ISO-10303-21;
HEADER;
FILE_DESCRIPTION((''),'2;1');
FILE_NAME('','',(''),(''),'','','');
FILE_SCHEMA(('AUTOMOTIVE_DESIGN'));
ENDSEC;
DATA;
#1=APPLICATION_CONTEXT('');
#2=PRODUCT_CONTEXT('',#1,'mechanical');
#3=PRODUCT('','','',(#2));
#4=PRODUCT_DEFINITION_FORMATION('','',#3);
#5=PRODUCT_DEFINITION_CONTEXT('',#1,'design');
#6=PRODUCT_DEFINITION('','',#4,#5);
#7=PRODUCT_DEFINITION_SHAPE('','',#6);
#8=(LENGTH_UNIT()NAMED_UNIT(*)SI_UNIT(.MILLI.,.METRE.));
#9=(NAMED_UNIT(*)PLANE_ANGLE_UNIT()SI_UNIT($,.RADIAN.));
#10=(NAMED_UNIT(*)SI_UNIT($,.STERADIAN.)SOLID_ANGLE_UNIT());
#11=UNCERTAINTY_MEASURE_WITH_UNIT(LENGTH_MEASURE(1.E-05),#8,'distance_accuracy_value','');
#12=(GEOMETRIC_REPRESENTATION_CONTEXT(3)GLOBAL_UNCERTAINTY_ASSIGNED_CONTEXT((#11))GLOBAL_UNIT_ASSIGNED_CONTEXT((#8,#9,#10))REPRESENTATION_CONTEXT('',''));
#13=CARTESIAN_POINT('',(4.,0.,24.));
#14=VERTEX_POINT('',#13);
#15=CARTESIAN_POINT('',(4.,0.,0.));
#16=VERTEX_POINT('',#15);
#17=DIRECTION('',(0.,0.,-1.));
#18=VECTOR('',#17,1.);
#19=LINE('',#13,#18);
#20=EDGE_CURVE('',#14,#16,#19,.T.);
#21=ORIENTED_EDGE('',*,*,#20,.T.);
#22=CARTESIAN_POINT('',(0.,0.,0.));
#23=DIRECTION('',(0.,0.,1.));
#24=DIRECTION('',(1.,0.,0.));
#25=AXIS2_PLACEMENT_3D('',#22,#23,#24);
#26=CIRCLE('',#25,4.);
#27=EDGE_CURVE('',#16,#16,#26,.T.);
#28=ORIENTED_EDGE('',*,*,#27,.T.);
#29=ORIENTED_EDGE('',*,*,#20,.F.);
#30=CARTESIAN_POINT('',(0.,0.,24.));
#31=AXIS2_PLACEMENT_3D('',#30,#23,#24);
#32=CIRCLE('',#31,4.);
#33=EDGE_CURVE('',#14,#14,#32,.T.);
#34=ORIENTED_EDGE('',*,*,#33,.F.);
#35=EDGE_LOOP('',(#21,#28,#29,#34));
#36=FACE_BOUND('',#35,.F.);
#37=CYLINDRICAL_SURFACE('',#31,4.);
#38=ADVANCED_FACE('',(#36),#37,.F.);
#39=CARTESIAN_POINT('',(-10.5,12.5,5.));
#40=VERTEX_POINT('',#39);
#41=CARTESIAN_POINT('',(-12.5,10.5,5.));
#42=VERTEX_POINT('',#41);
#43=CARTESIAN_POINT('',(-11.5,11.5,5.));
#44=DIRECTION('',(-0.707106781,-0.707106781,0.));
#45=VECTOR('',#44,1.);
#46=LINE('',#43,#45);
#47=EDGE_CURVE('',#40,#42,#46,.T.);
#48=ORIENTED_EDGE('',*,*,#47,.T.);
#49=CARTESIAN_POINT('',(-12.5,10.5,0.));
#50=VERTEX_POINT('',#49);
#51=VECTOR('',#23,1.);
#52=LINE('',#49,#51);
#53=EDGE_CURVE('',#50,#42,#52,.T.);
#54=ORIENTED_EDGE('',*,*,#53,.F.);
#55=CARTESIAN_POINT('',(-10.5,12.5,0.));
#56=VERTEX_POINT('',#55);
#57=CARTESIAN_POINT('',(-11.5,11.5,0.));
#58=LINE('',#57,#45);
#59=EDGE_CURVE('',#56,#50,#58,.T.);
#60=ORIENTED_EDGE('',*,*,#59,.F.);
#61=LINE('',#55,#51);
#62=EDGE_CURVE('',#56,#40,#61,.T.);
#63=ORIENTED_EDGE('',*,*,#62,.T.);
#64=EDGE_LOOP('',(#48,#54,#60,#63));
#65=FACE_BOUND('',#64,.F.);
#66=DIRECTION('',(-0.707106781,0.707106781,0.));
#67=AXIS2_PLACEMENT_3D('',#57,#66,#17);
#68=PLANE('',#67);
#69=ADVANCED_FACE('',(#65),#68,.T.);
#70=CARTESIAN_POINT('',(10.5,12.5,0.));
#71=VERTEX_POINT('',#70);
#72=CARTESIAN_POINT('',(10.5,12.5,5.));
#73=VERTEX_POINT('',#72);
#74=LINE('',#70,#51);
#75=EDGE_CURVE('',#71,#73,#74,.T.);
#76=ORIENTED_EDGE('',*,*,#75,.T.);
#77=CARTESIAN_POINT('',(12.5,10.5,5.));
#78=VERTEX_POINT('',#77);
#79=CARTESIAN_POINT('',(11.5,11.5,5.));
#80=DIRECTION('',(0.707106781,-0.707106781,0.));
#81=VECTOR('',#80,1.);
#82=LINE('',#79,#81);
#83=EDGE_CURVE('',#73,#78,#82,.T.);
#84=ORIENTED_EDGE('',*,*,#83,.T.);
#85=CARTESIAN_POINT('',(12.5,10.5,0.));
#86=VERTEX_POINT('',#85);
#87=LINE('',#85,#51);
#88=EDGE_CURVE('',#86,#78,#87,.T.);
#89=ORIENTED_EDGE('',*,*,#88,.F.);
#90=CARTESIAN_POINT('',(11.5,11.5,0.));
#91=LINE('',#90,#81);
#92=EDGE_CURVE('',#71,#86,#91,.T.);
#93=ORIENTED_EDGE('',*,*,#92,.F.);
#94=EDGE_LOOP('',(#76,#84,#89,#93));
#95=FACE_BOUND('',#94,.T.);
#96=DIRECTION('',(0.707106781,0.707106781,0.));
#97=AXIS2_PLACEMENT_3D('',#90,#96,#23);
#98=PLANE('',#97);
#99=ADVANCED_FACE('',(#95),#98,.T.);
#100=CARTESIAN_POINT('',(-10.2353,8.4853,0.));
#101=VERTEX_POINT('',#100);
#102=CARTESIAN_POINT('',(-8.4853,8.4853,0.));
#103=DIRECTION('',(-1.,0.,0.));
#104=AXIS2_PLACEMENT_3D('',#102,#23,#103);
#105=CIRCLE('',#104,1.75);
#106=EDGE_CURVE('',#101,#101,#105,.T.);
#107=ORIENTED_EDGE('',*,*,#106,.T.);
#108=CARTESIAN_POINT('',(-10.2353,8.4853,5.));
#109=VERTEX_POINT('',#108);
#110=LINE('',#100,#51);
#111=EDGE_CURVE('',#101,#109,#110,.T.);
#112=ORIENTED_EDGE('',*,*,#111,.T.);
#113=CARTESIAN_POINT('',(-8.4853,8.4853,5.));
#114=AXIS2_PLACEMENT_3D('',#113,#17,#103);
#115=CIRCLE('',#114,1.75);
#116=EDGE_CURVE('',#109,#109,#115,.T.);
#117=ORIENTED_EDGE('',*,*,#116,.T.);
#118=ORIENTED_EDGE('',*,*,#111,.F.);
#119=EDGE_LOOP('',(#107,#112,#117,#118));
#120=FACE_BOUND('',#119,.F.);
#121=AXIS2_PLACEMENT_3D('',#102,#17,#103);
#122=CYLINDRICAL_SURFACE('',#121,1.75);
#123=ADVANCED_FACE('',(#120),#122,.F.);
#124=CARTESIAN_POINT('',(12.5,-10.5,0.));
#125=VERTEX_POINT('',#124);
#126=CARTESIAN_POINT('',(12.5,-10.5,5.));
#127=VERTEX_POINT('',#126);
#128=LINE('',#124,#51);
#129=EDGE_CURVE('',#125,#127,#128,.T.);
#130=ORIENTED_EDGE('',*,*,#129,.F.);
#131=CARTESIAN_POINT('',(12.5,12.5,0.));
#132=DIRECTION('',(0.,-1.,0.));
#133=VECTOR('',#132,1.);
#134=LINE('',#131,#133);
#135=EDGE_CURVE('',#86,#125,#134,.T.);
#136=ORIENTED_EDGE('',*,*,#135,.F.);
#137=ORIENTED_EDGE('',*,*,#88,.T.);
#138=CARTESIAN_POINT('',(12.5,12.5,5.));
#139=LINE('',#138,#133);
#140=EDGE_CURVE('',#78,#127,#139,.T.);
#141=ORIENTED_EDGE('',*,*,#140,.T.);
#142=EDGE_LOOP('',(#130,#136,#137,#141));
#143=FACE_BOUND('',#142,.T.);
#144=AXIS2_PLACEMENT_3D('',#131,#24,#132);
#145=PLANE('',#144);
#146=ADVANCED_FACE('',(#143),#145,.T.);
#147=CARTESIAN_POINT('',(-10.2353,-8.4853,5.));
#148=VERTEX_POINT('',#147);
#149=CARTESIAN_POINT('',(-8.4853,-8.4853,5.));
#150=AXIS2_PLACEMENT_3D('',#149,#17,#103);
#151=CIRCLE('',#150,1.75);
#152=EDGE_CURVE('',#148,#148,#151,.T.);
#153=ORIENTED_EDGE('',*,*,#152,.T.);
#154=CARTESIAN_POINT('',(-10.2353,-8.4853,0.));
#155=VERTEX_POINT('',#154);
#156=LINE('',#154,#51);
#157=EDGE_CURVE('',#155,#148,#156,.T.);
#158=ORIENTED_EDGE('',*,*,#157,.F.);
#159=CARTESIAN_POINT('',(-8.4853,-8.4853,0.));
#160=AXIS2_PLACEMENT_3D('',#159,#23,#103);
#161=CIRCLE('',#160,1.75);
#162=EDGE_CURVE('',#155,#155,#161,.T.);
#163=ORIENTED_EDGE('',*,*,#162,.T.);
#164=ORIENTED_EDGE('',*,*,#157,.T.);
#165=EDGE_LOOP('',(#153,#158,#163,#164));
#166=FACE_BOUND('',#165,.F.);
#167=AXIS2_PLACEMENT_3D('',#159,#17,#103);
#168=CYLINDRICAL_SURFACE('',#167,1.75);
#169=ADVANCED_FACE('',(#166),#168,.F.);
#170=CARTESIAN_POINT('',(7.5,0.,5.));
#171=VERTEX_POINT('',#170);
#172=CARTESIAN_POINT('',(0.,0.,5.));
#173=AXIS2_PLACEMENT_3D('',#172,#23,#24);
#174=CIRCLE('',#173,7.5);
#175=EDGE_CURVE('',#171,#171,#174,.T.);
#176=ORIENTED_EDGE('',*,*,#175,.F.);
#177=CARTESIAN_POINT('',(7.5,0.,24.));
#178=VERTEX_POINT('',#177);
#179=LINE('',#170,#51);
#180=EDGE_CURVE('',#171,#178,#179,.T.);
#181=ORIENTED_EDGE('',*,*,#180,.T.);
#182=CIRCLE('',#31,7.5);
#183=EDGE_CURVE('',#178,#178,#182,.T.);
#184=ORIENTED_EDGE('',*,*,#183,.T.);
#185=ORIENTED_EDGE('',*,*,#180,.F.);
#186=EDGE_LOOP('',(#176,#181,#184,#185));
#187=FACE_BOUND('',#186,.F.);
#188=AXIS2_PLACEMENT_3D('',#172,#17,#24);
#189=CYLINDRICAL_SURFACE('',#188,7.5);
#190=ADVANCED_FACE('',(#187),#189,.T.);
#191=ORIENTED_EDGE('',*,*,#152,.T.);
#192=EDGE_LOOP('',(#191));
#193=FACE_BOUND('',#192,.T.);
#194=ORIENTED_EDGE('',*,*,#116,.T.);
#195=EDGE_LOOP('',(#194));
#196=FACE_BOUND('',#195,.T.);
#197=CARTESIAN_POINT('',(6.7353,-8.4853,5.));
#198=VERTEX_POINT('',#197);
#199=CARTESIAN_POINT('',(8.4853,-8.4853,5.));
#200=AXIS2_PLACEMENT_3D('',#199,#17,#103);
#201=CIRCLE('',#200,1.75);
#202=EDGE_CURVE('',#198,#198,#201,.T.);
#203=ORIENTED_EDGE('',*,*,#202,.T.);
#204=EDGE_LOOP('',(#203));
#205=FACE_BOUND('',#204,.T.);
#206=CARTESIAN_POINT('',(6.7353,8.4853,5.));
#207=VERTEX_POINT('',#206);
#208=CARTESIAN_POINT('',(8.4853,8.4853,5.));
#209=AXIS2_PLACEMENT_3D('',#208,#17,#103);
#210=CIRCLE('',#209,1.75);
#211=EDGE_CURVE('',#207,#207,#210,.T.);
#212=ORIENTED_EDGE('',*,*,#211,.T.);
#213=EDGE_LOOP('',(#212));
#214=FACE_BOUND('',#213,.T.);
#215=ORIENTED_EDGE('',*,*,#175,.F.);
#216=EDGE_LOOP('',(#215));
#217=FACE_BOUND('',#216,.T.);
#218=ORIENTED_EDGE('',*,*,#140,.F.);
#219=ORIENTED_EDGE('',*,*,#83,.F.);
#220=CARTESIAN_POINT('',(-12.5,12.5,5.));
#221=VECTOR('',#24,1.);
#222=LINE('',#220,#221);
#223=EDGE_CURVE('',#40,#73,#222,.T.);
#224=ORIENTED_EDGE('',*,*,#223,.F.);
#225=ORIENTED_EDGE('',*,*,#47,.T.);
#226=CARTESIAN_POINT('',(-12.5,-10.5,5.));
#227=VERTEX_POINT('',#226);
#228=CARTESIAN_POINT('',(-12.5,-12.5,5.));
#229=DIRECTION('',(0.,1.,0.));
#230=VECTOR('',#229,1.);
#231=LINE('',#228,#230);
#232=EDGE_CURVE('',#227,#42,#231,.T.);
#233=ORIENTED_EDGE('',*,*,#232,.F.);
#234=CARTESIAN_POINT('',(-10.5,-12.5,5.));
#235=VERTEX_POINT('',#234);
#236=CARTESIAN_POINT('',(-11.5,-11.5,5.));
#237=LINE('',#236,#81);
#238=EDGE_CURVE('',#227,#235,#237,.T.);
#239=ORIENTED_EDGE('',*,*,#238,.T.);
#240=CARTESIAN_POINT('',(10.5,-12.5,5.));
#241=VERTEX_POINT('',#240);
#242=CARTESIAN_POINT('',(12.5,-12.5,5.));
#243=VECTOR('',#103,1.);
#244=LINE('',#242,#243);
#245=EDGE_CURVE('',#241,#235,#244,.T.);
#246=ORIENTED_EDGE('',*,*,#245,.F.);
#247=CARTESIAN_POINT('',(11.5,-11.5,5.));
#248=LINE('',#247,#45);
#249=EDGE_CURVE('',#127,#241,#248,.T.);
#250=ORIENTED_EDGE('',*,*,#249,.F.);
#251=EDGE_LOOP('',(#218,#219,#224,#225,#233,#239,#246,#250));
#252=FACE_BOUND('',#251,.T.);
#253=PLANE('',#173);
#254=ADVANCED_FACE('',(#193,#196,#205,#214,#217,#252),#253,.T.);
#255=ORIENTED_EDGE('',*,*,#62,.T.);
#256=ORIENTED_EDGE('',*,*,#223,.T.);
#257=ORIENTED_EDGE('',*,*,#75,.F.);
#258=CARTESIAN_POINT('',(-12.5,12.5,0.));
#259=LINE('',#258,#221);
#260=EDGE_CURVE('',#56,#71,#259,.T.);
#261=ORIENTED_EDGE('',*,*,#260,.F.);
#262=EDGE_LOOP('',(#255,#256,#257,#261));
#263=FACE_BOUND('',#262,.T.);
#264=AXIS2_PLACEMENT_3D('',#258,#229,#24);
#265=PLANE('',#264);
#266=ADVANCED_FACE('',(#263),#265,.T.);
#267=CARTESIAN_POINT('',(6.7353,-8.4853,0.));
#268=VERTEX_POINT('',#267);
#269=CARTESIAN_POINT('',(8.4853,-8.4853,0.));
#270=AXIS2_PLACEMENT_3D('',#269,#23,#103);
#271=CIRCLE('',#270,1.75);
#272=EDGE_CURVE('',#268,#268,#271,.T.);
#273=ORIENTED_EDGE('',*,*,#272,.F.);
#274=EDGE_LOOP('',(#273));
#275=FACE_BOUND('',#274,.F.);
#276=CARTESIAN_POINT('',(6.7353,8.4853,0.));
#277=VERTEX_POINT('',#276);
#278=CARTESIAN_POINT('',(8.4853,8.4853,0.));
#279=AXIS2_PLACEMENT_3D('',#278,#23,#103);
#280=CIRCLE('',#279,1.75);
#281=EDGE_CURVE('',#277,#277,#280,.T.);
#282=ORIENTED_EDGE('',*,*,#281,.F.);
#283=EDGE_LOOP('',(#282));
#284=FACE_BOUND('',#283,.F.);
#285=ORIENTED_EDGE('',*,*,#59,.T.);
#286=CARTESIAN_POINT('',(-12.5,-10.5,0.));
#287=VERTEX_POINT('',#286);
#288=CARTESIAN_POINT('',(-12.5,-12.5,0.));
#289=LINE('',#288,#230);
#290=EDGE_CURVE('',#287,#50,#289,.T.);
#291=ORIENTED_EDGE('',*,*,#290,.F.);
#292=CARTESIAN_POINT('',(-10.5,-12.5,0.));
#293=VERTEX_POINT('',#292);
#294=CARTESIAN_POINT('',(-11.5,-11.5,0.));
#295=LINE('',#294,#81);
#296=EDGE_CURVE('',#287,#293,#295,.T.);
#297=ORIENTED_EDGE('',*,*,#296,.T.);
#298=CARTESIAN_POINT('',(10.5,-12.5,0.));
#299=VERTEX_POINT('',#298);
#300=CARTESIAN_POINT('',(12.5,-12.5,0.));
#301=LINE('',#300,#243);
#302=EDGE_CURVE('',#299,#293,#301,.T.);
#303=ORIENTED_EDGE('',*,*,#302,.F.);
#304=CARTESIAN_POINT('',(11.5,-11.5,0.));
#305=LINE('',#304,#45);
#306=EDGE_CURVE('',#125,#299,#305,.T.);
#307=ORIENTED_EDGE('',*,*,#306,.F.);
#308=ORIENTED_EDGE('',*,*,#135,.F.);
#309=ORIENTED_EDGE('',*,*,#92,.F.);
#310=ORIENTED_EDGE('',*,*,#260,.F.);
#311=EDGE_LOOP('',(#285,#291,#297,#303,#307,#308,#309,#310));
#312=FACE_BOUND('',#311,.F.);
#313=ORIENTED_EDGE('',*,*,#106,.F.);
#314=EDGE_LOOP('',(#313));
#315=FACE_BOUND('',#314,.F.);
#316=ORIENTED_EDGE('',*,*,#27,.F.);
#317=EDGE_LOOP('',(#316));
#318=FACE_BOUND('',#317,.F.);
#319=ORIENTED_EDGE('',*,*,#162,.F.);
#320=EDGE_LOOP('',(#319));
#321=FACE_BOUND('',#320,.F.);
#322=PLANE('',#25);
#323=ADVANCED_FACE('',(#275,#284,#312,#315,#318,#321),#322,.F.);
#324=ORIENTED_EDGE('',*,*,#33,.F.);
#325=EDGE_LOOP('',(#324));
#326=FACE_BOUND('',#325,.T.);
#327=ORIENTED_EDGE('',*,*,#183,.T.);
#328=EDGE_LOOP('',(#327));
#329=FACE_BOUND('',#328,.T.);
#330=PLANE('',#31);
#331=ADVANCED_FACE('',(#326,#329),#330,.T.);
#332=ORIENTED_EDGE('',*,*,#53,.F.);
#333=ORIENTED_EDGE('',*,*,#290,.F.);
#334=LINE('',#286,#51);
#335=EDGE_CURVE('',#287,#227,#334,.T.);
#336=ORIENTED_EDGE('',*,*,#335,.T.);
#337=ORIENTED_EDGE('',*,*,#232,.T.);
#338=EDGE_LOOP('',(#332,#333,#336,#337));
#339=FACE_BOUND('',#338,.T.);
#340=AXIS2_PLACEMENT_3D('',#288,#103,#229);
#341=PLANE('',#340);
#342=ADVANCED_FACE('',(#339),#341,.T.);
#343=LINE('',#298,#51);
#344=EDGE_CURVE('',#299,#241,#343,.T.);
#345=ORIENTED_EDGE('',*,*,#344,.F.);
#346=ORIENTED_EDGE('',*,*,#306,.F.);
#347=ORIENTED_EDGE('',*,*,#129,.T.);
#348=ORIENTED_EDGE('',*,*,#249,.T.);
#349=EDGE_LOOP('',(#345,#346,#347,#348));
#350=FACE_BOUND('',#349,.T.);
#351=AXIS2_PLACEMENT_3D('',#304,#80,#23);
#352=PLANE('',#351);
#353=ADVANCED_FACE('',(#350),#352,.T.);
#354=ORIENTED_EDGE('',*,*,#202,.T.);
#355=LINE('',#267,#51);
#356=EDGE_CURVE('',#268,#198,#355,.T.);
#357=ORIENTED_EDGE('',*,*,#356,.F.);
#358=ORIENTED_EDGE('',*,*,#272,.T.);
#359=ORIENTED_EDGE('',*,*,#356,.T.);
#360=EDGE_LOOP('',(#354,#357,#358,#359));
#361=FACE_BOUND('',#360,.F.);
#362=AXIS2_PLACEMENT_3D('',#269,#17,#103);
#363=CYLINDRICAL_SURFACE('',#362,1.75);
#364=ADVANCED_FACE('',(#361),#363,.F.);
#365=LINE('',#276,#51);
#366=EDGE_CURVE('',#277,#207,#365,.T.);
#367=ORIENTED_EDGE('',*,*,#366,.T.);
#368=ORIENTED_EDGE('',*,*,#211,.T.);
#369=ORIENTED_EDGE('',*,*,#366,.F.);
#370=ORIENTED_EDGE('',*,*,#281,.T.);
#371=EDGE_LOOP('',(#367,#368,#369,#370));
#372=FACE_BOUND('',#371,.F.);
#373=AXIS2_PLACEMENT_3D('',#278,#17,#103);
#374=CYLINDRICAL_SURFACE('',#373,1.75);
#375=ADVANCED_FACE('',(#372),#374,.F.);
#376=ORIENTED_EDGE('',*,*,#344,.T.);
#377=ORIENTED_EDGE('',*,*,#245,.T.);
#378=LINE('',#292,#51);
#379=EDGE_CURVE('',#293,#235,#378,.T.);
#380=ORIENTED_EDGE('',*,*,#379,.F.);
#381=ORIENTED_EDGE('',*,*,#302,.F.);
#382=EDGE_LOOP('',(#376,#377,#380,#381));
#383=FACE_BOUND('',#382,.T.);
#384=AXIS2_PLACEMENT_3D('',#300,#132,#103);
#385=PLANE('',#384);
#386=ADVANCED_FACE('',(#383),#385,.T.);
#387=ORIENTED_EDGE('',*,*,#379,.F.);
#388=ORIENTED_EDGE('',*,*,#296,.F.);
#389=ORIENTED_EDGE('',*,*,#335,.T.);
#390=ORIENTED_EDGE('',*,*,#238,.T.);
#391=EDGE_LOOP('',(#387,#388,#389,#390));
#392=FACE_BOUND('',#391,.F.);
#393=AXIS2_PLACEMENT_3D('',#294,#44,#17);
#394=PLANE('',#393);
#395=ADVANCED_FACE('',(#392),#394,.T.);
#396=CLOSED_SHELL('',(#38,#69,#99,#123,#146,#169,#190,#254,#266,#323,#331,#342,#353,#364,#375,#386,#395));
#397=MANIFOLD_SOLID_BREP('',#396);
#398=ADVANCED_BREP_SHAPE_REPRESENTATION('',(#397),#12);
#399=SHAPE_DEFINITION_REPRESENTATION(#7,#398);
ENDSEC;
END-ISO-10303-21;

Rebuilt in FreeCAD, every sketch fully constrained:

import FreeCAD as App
import Part
import Sketcher
from FreeCAD import Vector


def edges_at(feature, points):
    """Names of the edges that pass closest to the given points."""
    edges = feature.Shape.Edges
    near = lambda p: min(range(len(edges)), key=lambda i: edges[i].distToShape(Part.Vertex(*p))[0])
    return sorted({f"Edge{near(p) + 1}" for p in points})

doc = App.newDocument("Part")
body = doc.addObject("PartDesign::Body", "Body")

# Sketch on XY plane
sketch1 = doc.addObject("Sketcher::SketchObject", "Sketch")
body.addObject(sketch1)
sketch1.AttachmentSupport = (doc.XY_Plane, [""])
sketch1.MapMode = "FlatFace"
sketch1.addGeometry([
    Part.LineSegment(Vector(12.5, 12.5, 0), Vector(-12.5, 12.5, 0)),
    Part.LineSegment(Vector(-12.5, 12.5, 0), Vector(-12.5, -12.5, 0)),
    Part.LineSegment(Vector(-12.5, -12.5, 0), Vector(12.5, -12.5, 0)),
    Part.LineSegment(Vector(12.5, -12.5, 0), Vector(12.5, 12.5, 0)),
], False)
sketch1.addConstraint([
    Sketcher.Constraint("Coincident", 0, 2, 1, 1),
    Sketcher.Constraint("Coincident", 1, 2, 2, 1),
    Sketcher.Constraint("Coincident", 2, 2, 3, 1),
    Sketcher.Constraint("Coincident", 3, 2, 0, 1),
    Sketcher.Constraint("Horizontal", 0),
    Sketcher.Constraint("Vertical", 1),
    Sketcher.Constraint("Horizontal", 2),
    Sketcher.Constraint("Vertical", 3),
    Sketcher.Constraint("Symmetric", 0, 2, 2, 2, -1, 1),
    Sketcher.Constraint("Equal", 2, 1),
    Sketcher.Constraint("DistanceX", 0, 2, 0, 1, 25.0),
])
pad1 = doc.addObject("PartDesign::Pad", "Pad")
body.addObject(pad1)
pad1.Profile = sketch1
pad1.Length = 5

# Sketch on XY plane
sketch2 = doc.addObject("Sketcher::SketchObject", "Sketch001")
body.addObject(sketch2)
sketch2.AttachmentSupport = (doc.XY_Plane, [""])
sketch2.MapMode = "FlatFace"
sketch2.AttachmentOffset = App.Placement(Vector(0, 0, 5), App.Rotation())
sketch2.addGeometry(Part.Circle(Vector(0, 0, 0), Vector(0, 0, 1), 7.5), False)
sketch2.addConstraint([
    Sketcher.Constraint("Coincident", 0, 3, -1, 1),
    Sketcher.Constraint("Diameter", 0, 15.0),
])
pad2 = doc.addObject("PartDesign::Pad", "Pad001")
body.addObject(pad2)
pad2.Profile = sketch2
pad2.Length = 19

# Sketch on XY plane
sketch3 = doc.addObject("Sketcher::SketchObject", "Sketch002")
body.addObject(sketch3)
sketch3.AttachmentSupport = (doc.XY_Plane, [""])
sketch3.MapMode = "FlatFace"
sketch3.AttachmentOffset = App.Placement(Vector(0, 0, 24), App.Rotation())
sketch3.addGeometry(Part.Circle(Vector(0, 0, 0), Vector(0, 0, 1), 4), False)
sketch3.addConstraint([
    Sketcher.Constraint("Coincident", 0, 3, -1, 1),
    Sketcher.Constraint("Diameter", 0, 8.0),
])
pocket1 = doc.addObject("PartDesign::Pocket", "Pocket")
body.addObject(pocket1)
pocket1.Profile = sketch3
pocket1.Length = 30

# Sketch on XY plane
sketch4 = doc.addObject("Sketcher::SketchObject", "Sketch003")
body.addObject(sketch4)
sketch4.AttachmentSupport = (doc.XY_Plane, [""])
sketch4.MapMode = "FlatFace"
sketch4.addGeometry([
    Part.Circle(Vector(-8.4853, 8.4853, 0), Vector(0, 0, 1), 1.75),
    Part.Circle(Vector(-8.4853, -8.4853, 0), Vector(0, 0, 1), 1.75),
    Part.Circle(Vector(8.4853, 8.4853, 0), Vector(0, 0, 1), 1.75),
    Part.Circle(Vector(8.4853, -8.4853, 0), Vector(0, 0, 1), 1.75),
], False)
sketch4.addConstraint([
    Sketcher.Constraint("Equal", 0, 1),
    Sketcher.Constraint("Equal", 1, 2),
    Sketcher.Constraint("Equal", 2, 3),
    Sketcher.Constraint("Symmetric", 1, 3, 2, 3, -1, 1),
    Sketcher.Constraint("Symmetric", 0, 3, 3, 3, -1, 1),
    Sketcher.Constraint("Symmetric", 0, 3, 2, 3, -2),
    Sketcher.Constraint("Diameter", 0, 3.5),
    Sketcher.Constraint("DistanceX", 0, 3, -1, 1, 8.4853),
    Sketcher.Constraint("DistanceY", -1, 1, 0, 3, 8.4853),
])
pocket2 = doc.addObject("PartDesign::Pocket", "Pocket001")
body.addObject(pocket2)
pocket2.Profile = sketch4
pocket2.Length = 30
pocket2.Reversed = True
doc.recompute()

chamfer = doc.addObject("PartDesign::Chamfer", "Chamfer")
body.addObject(chamfer)
chamfer.Base = (pocket2, edges_at(pocket2, [
    (12.5, 12.5, 2.5),
    (-12.5, 12.5, 2.5),
    (-12.5, -12.5, 2.5),
    (12.5, -12.5, 2.5),
]))
chamfer.Size = 2

doc.recompute()
